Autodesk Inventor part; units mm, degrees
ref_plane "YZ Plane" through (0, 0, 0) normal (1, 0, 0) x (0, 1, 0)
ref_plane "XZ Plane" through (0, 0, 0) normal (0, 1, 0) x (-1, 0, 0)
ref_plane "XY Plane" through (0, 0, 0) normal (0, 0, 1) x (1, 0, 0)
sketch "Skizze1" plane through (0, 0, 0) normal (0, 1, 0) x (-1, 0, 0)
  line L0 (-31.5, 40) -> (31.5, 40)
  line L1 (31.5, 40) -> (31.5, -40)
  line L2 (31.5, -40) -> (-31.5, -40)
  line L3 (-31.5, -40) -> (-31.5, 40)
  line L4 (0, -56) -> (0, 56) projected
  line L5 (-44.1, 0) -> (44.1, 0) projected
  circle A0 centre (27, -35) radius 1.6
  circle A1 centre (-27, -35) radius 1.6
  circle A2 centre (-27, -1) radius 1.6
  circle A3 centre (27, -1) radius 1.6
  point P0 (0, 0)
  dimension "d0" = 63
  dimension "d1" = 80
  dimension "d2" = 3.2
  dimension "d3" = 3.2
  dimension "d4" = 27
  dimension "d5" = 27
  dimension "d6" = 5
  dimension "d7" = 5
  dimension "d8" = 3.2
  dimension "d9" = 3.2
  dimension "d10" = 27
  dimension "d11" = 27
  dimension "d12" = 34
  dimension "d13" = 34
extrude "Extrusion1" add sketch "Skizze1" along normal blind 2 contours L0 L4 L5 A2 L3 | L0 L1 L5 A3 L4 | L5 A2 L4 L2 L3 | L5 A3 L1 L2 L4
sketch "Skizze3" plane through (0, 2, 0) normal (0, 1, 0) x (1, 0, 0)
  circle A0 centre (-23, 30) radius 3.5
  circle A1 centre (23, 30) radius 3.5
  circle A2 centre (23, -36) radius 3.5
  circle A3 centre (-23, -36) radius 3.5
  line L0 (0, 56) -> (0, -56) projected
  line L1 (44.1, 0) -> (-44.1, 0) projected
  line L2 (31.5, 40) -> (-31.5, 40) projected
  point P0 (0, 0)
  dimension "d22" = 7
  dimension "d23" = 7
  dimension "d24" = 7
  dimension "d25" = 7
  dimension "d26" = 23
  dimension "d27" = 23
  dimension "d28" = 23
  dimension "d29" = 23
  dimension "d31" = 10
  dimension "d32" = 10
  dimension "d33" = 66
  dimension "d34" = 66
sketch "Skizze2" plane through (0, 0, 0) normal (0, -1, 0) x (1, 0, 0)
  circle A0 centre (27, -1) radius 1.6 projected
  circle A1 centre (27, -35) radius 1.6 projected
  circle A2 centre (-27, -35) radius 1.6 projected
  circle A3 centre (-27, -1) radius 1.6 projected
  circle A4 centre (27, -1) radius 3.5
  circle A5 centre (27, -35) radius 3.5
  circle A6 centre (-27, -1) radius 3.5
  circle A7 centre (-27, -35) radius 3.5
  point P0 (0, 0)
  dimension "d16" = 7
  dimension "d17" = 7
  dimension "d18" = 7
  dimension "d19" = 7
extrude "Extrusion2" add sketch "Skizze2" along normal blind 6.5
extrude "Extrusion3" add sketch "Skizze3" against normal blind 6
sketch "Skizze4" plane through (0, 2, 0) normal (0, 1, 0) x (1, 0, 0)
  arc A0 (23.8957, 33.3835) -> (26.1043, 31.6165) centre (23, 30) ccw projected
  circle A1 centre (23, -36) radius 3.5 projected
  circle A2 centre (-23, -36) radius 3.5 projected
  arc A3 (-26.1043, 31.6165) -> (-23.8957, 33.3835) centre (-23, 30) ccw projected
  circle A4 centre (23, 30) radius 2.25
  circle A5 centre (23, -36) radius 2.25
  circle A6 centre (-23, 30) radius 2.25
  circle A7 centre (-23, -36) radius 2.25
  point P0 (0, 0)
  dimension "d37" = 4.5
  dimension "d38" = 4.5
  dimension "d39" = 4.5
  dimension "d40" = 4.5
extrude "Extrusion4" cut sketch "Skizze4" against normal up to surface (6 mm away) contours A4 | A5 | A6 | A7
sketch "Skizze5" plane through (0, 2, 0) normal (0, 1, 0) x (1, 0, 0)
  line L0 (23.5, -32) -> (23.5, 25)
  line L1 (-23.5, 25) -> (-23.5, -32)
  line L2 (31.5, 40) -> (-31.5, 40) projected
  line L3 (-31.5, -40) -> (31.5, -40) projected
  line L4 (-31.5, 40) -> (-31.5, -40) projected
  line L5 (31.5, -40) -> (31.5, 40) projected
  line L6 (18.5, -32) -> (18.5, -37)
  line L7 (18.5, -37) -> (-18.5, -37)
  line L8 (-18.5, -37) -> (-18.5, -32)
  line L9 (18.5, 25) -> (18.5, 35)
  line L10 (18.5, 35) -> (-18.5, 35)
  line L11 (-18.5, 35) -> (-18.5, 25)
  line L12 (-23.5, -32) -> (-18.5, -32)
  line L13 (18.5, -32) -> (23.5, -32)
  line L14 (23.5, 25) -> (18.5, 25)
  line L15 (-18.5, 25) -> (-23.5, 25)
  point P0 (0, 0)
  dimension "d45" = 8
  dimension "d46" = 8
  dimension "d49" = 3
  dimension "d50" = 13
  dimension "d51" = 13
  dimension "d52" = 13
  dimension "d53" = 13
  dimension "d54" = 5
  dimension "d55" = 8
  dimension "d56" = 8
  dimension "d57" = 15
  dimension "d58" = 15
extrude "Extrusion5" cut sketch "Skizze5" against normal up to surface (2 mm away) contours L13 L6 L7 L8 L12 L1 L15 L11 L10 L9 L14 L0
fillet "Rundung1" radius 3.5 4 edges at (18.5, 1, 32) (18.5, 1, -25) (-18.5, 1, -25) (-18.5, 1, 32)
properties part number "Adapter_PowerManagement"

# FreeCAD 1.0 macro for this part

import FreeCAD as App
import Part
import Sketcher
from FreeCAD import Vector


def edges_at(feature, points):
    """Names of the edges that pass closest to the given points."""
    edges = feature.Shape.Edges
    near = lambda p: min(range(len(edges)), key=lambda i: edges[i].distToShape(Part.Vertex(*p))[0])
    return sorted({f"Edge{near(p) + 1}" for p in points})

doc = App.newDocument("Part")
body = doc.addObject("PartDesign::Body", "Body")

sketch1 = body.newObject("Sketcher::SketchObject", "Sketch")
sketch1.AttachmentSupport = (doc.getObject("XZ_Plane"), [""])
sketch1.MapMode = "FlatFace"
sketch1.addGeometry(Part.LineSegment(Vector(31.5, 40, 0), Vector(31.5, -40, 0)), False)
sketch1.addGeometry(Part.LineSegment(Vector(31.5, -40, 0), Vector(-31.5, -40, 0)), False)
sketch1.addGeometry(Part.LineSegment(Vector(-31.5, -40, 0), Vector(-31.5, 40, 0)), False)
sketch1.addGeometry(Part.LineSegment(Vector(-31.5, 40, 0), Vector(31.5, 40, 0)), False)
sketch1.addGeometry(Part.Circle(Vector(27, -1, 0), Vector(0, 0, 1), 1.6), False)
sketch1.addGeometry(Part.Circle(Vector(-27, -1, 0), Vector(0, 0, 1), 1.6), False)
sketch1.addGeometry(Part.Circle(Vector(27, -35, 0), Vector(0, 0, 1), 1.6), False)
sketch1.addGeometry(Part.Circle(Vector(-27, -35, 0), Vector(0, 0, 1), 1.6), False)
sketch1.addConstraint(Sketcher.Constraint("Coincident", 0, 2, 1, 1))
sketch1.addConstraint(Sketcher.Constraint("Coincident", 1, 2, 2, 1))
sketch1.addConstraint(Sketcher.Constraint("Coincident", 2, 2, 3, 1))
sketch1.addConstraint(Sketcher.Constraint("Coincident", 3, 2, 0, 1))
sketch1.addConstraint(Sketcher.Constraint("Vertical", 0))
sketch1.addConstraint(Sketcher.Constraint("Horizontal", 1))
sketch1.addConstraint(Sketcher.Constraint("Vertical", 2))
sketch1.addConstraint(Sketcher.Constraint("Horizontal", 3))
sketch1.addConstraint(Sketcher.Constraint("Equal", 4, 5))
sketch1.addConstraint(Sketcher.Constraint("Equal", 5, 6))
sketch1.addConstraint(Sketcher.Constraint("Equal", 6, 7))
sketch1.addConstraint(Sketcher.Constraint("Symmetric", 0, 2, 2, 2, -1, 1))
sketch1.addConstraint(Sketcher.Constraint("Symmetric", 4, 3, 5, 3, -2))
sketch1.addConstraint(Sketcher.Constraint("Symmetric", 6, 3, 7, 3, -2))
sketch1.addConstraint(Sketcher.Constraint("Vertical", 4, 3, 6, 3))
sketch1.addConstraint(Sketcher.Constraint("Diameter", 4, 3.2))
sketch1.addConstraint(Sketcher.Constraint("DistanceX", 1, 2, 1, 1, 63.0))
sketch1.addConstraint(Sketcher.Constraint("DistanceY", 0, 2, 0, 1, 80.0))
sketch1.addConstraint(Sketcher.Constraint("DistanceX", -1, 1, 4, 3, 27.0))
sketch1.addConstraint(Sketcher.Constraint("DistanceY", 6, 3, 4, 3, 34.0))
sketch1.addConstraint(Sketcher.Constraint("DistanceY", 0, 2, 6, 3, 5.0))
pad1 = body.newObject("PartDesign::Pad", "Pad")
pad1.Profile = sketch1
pad1.Length = 2
pad1.Reversed = True

sketch2 = body.newObject("Sketcher::SketchObject", "Sketch001")
sketch2.AttachmentSupport = (doc.getObject("XZ_Plane"), [""])
sketch2.MapMode = "FlatFace"
sketch2.addGeometry(Part.Circle(Vector(27, -1, 0), Vector(0, 0, 1), 3.5), False)
sketch2.addGeometry(Part.Circle(Vector(27, -1, 0), Vector(0, 0, 1), 1.6), False)
sketch2.addGeometry(Part.Circle(Vector(27, -35, 0), Vector(0, 0, 1), 3.5), False)
sketch2.addGeometry(Part.Circle(Vector(27, -35, 0), Vector(0, 0, 1), 1.6), False)
sketch2.addGeometry(Part.Circle(Vector(-27, -1, 0), Vector(0, 0, 1), 3.5), False)
sketch2.addGeometry(Part.Circle(Vector(-27, -1, 0), Vector(0, 0, 1), 1.6), False)
sketch2.addGeometry(Part.Circle(Vector(-27, -35, 0), Vector(0, 0, 1), 3.5), False)
sketch2.addGeometry(Part.Circle(Vector(-27, -35, 0), Vector(0, 0, 1), 1.6), False)
sketch2.addConstraint(Sketcher.Constraint("Coincident", 1, 3, 0, 3))
sketch2.addConstraint(Sketcher.Constraint("Coincident", 3, 3, 2, 3))
sketch2.addConstraint(Sketcher.Constraint("Coincident", 5, 3, 4, 3))
sketch2.addConstraint(Sketcher.Constraint("Coincident", 7, 3, 6, 3))
sketch2.addConstraint(Sketcher.Constraint("Equal", 0, 2))
sketch2.addConstraint(Sketcher.Constraint("Equal", 1, 3))
sketch2.addConstraint(Sketcher.Constraint("Equal", 2, 4))
sketch2.addConstraint(Sketcher.Constraint("Equal", 3, 5))
sketch2.addConstraint(Sketcher.Constraint("Equal", 4, 6))
sketch2.addConstraint(Sketcher.Constraint("Equal", 5, 7))
sketch2.addConstraint(Sketcher.Constraint("Symmetric", 0, 3, 4, 3, -2))
sketch2.addConstraint(Sketcher.Constraint("Symmetric", 2, 3, 6, 3, -2))
sketch2.addConstraint(Sketcher.Constraint("Vertical", 1, 3, 2, 3))
sketch2.addConstraint(Sketcher.Constraint("Diameter", 0, 7.0))
sketch2.addConstraint(Sketcher.Constraint("Diameter", 1, 3.2))
sketch2.addConstraint(Sketcher.Constraint("DistanceX", -1, 1, 0, 3, 27.0))
sketch2.addConstraint(Sketcher.Constraint("DistanceY", 0, 3, -1, 1, 1.0))
sketch2.addConstraint(Sketcher.Constraint("DistanceY", 2, 3, -1, 1, 35.0))
pad2 = body.newObject("PartDesign::Pad", "Pad001")
pad2.Profile = sketch2
pad2.Length = 6.5

sketch3 = body.newObject("Sketcher::SketchObject", "Sketch002")
sketch3.AttachmentSupport = (doc.getObject("XZ_Plane"), [""])
sketch3.MapMode = "FlatFace"
sketch3.AttachmentOffset = App.Placement(Vector(0, 0, -2), App.Rotation())
sketch3.addGeometry(Part.Circle(Vector(-23, -30, 0), Vector(0, 0, 1), 3.5), False)
sketch3.addGeometry(Part.Circle(Vector(23, -30, 0), Vector(0, 0, 1), 3.5), False)
sketch3.addGeometry(Part.Circle(Vector(23, 36, 0), Vector(0, 0, 1), 3.5), False)
sketch3.addGeometry(Part.Circle(Vector(-23, 36, 0), Vector(0, 0, 1), 3.5), False)
sketch3.addConstraint(Sketcher.Constraint("Equal", 0, 1))
sketch3.addConstraint(Sketcher.Constraint("Equal", 1, 2))
sketch3.addConstraint(Sketcher.Constraint("Equal", 2, 3))
sketch3.addConstraint(Sketcher.Constraint("Symmetric", 0, 3, 1, 3, -2))
sketch3.addConstraint(Sketcher.Constraint("Symmetric", 2, 3, 3, 3, -2))
sketch3.addConstraint(Sketcher.Constraint("Vertical", 1, 3, 2, 3))
sketch3.addConstraint(Sketcher.Constraint("Diameter", 0, 7.0))
sketch3.addConstraint(Sketcher.Constraint("DistanceX", 0, 3, -1, 1, 23.0))
sketch3.addConstraint(Sketcher.Constraint("DistanceY", 1, 3, 2, 3, 66.0))
sketch3.addConstraint(Sketcher.Constraint("DistanceY", 0, 3, -1, 1, 30.0))
pad3 = body.newObject("PartDesign::Pad", "Pad002")
pad3.Profile = sketch3
pad3.Length = 6

sketch4 = body.newObject("Sketcher::SketchObject", "Sketch003")
sketch4.AttachmentSupport = (doc.getObject("XZ_Plane"), [""])
sketch4.MapMode = "FlatFace"
sketch4.AttachmentOffset = App.Placement(Vector(0, 0, -2), App.Rotation())
sketch4.addGeometry(Part.Circle(Vector(23, -30, 0), Vector(0, 0, 1), 2.2), False)
sketch4.addGeometry(Part.Circle(Vector(23, 36, 0), Vector(0, 0, 1), 2.2), False)
sketch4.addGeometry(Part.Circle(Vector(-23, -30, 0), Vector(0, 0, 1), 2.2), False)
sketch4.addGeometry(Part.Circle(Vector(-23, 36, 0), Vector(0, 0, 1), 2.2), False)
sketch4.addConstraint(Sketcher.Constraint("Equal", 0, 1))
sketch4.addConstraint(Sketcher.Constraint("Equal", 1, 2))
sketch4.addConstraint(Sketcher.Constraint("Equal", 2, 3))
sketch4.addConstraint(Sketcher.Constraint("Symmetric", 0, 3, 2, 3, -2))
sketch4.addConstraint(Sketcher.Constraint("Symmetric", 1, 3, 3, 3, -2))
sketch4.addConstraint(Sketcher.Constraint("Vertical", 0, 3, 1, 3))
sketch4.addConstraint(Sketcher.Constraint("Diameter", 0, 4.5))
sketch4.addConstraint(Sketcher.Constraint("DistanceX", -1, 1, 0, 3, 23.0))
sketch4.addConstraint(Sketcher.Constraint("DistanceY", 0, 3, -1, 1, 30.0))
sketch4.addConstraint(Sketcher.Constraint("DistanceY", -1, 1, 1, 3, 36.0))
pocket1 = body.newObject("PartDesign::Pocket", "Pocket")
pocket1.Profile = sketch4
pocket1.Length = 6
pocket1.Reversed = True

sketch5 = body.newObject("Sketcher::SketchObject", "Sketch004")
sketch5.AttachmentSupport = (doc.getObject("XZ_Plane"), [""])
sketch5.MapMode = "FlatFace"
sketch5.AttachmentOffset = App.Placement(Vector(0, 0, -2), App.Rotation())
sketch5.addGeometry(Part.LineSegment(Vector(18, 32, 0), Vector(24, 32, 0)), False)
sketch5.addGeometry(Part.LineSegment(Vector(24, 32, 0), Vector(24, -25, 0)), False)
sketch5.addGeometry(Part.LineSegment(Vector(24, -25, 0), Vector(18, -25, 0)), False)
sketch5.addGeometry(Part.LineSegment(Vector(18, -25, 0), Vector(18, -35, 0)), False)
sketch5.addGeometry(Part.LineSegment(Vector(18, -35, 0), Vector(-18, -35, 0)), False)
sketch5.addGeometry(Part.LineSegment(Vector(-18, -35, 0), Vector(-18, -25, 0)), False)
sketch5.addGeometry(Part.LineSegment(Vector(-18, -25, 0), Vector(-24, -25, 0)), False)
sketch5.addGeometry(Part.LineSegment(Vector(-24, -25, 0), Vector(-24, 32, 0)), False)
sketch5.addGeometry(Part.LineSegment(Vector(-24, 32, 0), Vector(-18, 32, 0)), False)
sketch5.addGeometry(Part.LineSegment(Vector(-18, 32, 0), Vector(-18, 37, 0)), False)
sketch5.addGeometry(Part.LineSegment(Vector(-18, 37, 0), Vector(18, 37, 0)), False)
sketch5.addGeometry(Part.LineSegment(Vector(18, 37, 0), Vector(18, 32, 0)), False)
sketch5.addConstraint(Sketcher.Constraint("Coincident", 0, 2, 1, 1))
sketch5.addConstraint(Sketcher.Constraint("Coincident", 1, 2, 2, 1))
sketch5.addConstraint(Sketcher.Constraint("Coincident", 2, 2, 3, 1))
sketch5.addConstraint(Sketcher.Constraint("Coincident", 3, 2, 4, 1))
sketch5.addConstraint(Sketcher.Constraint("Coincident", 4, 2, 5, 1))
sketch5.addConstraint(Sketcher.Constraint("Coincident", 5, 2, 6, 1))
sketch5.addConstraint(Sketcher.Constraint("Coincident", 6, 2, 7, 1))
sketch5.addConstraint(Sketcher.Constraint("Coincident", 7, 2, 8, 1))
sketch5.addConstraint(Sketcher.Constraint("Coincident", 8, 2, 9, 1))
sketch5.addConstraint(Sketcher.Constraint("Coincident", 9, 2, 10, 1))
sketch5.addConstraint(Sketcher.Constraint("Coincident", 10, 2, 11, 1))
sketch5.addConstraint(Sketcher.Constraint("Coincident", 11, 2, 0, 1))
sketch5.addConstraint(Sketcher.Constraint("Horizontal", 0))
sketch5.addConstraint(Sketcher.Constraint("Vertical", 1))
sketch5.addConstraint(Sketcher.Constraint("Horizontal", 2))
sketch5.addConstraint(Sketcher.Constraint("Vertical", 3))
sketch5.addConstraint(Sketcher.Constraint("Horizontal", 4))
sketch5.addConstraint(Sketcher.Constraint("Vertical", 5))
sketch5.addConstraint(Sketcher.Constraint("Horizontal", 6))
sketch5.addConstraint(Sketcher.Constraint("Vertical", 7))
sketch5.addConstraint(Sketcher.Constraint("Horizontal", 8))
sketch5.addConstraint(Sketcher.Constraint("Vertical", 9))
sketch5.addConstraint(Sketcher.Constraint("Horizontal", 10))
sketch5.addConstraint(Sketcher.Constraint("Vertical", 11))
sketch5.addConstraint(Sketcher.Constraint("Symmetric", 2, 2, 5, 2, -2))
sketch5.addConstraint(Sketcher.Constraint("Symmetric", 0, 2, 7, 2, -2))
sketch5.addConstraint(Sketcher.Constraint("Vertical", 5, 2, 8, 2))
sketch5.addConstraint(Sketcher.Constraint("Vertical", 3, 2, 10, 2))
sketch5.addConstraint(Sketcher.Constraint("Equal", 8, 9))
sketch5.addConstraint(Sketcher.Constraint("DistanceX", 0, 1, 0, 2, 5.0))
sketch5.addConstraint(Sketcher.Constraint("DistanceX", 4, 2, 4, 1, 37.0))
sketch5.addConstraint(Sketcher.Constraint("DistanceY", 1, 2, 1, 1, 57.0))
sketch5.addConstraint(Sketcher.Constraint("DistanceY", 3, 2, 3, 1, 10.0))
sketch5.addConstraint(Sketcher.Constraint("DistanceY", -1, 1, 0, 2, 32.0))
pocket2 = body.newObject("PartDesign::Pocket", "Pocket001")
pocket2.Profile = sketch5
pocket2.Length = 2
pocket2.Reversed = True
doc.recompute()

fillet = body.newObject("PartDesign::Fillet", "Fillet")
fillet.Base = (pocket2, edges_at(pocket2, [
    (18.5, 1, 32),
    (18.5, 1, -25),
    (-18.5, 1, -25),
    (-18.5, 1, 32),
]))
fillet.Radius = 3.5

doc.recompute()
